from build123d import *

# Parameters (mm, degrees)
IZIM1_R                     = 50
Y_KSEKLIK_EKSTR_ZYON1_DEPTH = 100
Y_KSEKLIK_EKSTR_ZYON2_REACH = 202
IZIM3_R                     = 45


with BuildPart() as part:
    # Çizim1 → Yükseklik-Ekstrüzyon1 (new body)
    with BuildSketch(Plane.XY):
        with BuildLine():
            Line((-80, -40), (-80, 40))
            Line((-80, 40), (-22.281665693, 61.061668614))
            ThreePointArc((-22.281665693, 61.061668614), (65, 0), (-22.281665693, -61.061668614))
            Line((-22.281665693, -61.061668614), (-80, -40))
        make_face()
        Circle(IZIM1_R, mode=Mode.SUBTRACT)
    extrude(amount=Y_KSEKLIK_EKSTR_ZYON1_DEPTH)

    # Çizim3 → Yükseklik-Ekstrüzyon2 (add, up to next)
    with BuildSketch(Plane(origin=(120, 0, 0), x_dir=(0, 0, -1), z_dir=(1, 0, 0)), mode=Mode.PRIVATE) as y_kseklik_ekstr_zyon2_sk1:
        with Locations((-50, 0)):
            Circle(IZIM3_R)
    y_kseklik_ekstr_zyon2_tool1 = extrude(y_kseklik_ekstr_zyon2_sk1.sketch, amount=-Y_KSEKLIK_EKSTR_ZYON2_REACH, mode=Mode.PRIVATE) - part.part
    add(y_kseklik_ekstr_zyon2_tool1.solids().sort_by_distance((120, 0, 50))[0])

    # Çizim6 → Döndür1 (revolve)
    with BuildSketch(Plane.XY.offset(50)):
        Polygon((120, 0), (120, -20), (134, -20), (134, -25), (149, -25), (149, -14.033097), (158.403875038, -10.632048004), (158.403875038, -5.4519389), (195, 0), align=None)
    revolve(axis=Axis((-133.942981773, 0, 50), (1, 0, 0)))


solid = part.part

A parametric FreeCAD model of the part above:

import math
import FreeCAD as App
import Part
import Sketcher

V = App.Vector
Q = App.Units.Quantity

doc = App.newDocument("Part")
body = doc.addObject("PartDesign::Body", "Body")

# Sketch on XY plane
sketch1 = doc.addObject("Sketcher::SketchObject", "Sketch")
body.addObject(sketch1)
sketch1.AttachmentSupport = (doc.XY_Plane, [""])
sketch1.MapMode = "FlatFace"
sketch1.addGeometry([
    Part.LineSegment(V(-80, 40, 0), V(-80, -40, 0)),  # 0
    Part.LineSegment(V(-80, -40, 0), V(-22, -61, 0)),  # 1
    Part.ArcOfCircle(Part.Circle(V(0, 0, 0), V(0, 0, 1), 65), math.radians(-110), math.radians(110)),  # 2
    Part.LineSegment(V(-22, 61, 0), V(-80, 40, 0)),  # 3
    Part.Circle(V(0, 0, 0), V(0, 0, 1), 50),  # 4
], False)
sketch1.addConstraint([
    Sketcher.Constraint("Coincident", 0, 2, 1, 1),
    Sketcher.Constraint("Tangent", 1, 2, 2, 1),
    Sketcher.Constraint("Tangent", 2, 2, 3, 1),
    Sketcher.Constraint("Coincident", 3, 2, 0, 1),
    Sketcher.Constraint("Vertical", 0),
    Sketcher.Constraint("Coincident", 2, 3, -1, 1),
    Sketcher.Constraint("Coincident", 4, 3, -1, 1),
    Sketcher.Constraint("Vertical", 1, 2, 2, 2),
    Sketcher.Constraint("Diameter", 4, Q("100 mm")),
    Sketcher.Constraint("Radius", 2, Q("65 mm")),
    Sketcher.Constraint("DistanceY", 0, 2, 0, 1, Q("80 mm")),
    Sketcher.Constraint("DistanceX", 0, 2, -1, 1, Q("80 mm")),
])
pad1 = doc.addObject("PartDesign::Pad", "Pad")
body.addObject(pad1)
pad1.Profile = sketch1
pad1.Length = 100

# Sketch on YZ plane
sketch2 = doc.addObject("Sketcher::SketchObject", "Sketch001")
body.addObject(sketch2)
sketch2.AttachmentSupport = (doc.YZ_Plane, [""])
sketch2.MapMode = "FlatFace"
sketch2.AttachmentOffset = App.Placement(V(0, 0, 120), App.Rotation())
sketch2.addGeometry(Part.Circle(V(0, 50, 0), V(0, 0, 1), 45), False)
sketch2.addConstraint([
    Sketcher.Constraint("PointOnObject", 0, 3, -2),
    Sketcher.Constraint("Diameter", 0, Q("90 mm")),
    Sketcher.Constraint("DistanceY", -1, 1, 0, 3, Q("50 mm")),
])
pad2 = doc.addObject("PartDesign::Pad", "Pad001")
body.addObject(pad2)
pad2.Profile = sketch2
pad2.Type = "UpToFirst"
pad2.Reversed = True

# Sketch on XY plane
sketch3 = doc.addObject("Sketcher::SketchObject", "Sketch002")
body.addObject(sketch3)
sketch3.AttachmentSupport = (doc.XY_Plane, [""])
sketch3.MapMode = "FlatFace"
sketch3.AttachmentOffset = App.Placement(V(0, 0, 50), App.Rotation())
sketch3.addGeometry([
    Part.LineSegment(V(120, 0, 0), V(120, -20, 0)),  # 0
    Part.LineSegment(V(120, -20, 0), V(134, -20, 0)),  # 1
    Part.LineSegment(V(134, -20, 0), V(134, -25, 0)),  # 2
    Part.LineSegment(V(134, -25, 0), V(149, -25, 0)),  # 3
    Part.LineSegment(V(149, -25, 0), V(149, -14, 0)),  # 4
    Part.LineSegment(V(149, -14, 0), V(158, -11, 0)),  # 5
    Part.LineSegment(V(158, -11, 0), V(158, -5, 0)),  # 6
    Part.LineSegment(V(158, -5, 0), V(195, 0, 0)),  # 7
    Part.LineSegment(V(195, 0, 0), V(120, 0, 0)),  # 8
], False)
sketch3.addConstraint([
    Sketcher.Constraint("Coincident", 0, 2, 1, 1),
    Sketcher.Constraint("Coincident", 1, 2, 2, 1),
    Sketcher.Constraint("Coincident", 2, 2, 3, 1),
    Sketcher.Constraint("Coincident", 3, 2, 4, 1),
    Sketcher.Constraint("Coincident", 4, 2, 5, 1),
    Sketcher.Constraint("Coincident", 5, 2, 6, 1),
    Sketcher.Constraint("Coincident", 6, 2, 7, 1),
    Sketcher.Constraint("Coincident", 7, 2, 8, 1),
    Sketcher.Constraint("Coincident", 8, 2, 0, 1),
    Sketcher.Constraint("Vertical", 0),
    Sketcher.Constraint("Horizontal", 1),
    Sketcher.Constraint("Vertical", 2),
    Sketcher.Constraint("Horizontal", 3),
    Sketcher.Constraint("Vertical", 4),
    Sketcher.Constraint("Vertical", 6),
    Sketcher.Constraint("Horizontal", 8),
    Sketcher.Constraint("PointOnObject", 7, 2, -1),
    Sketcher.Constraint("DistanceX", 1, 1, 1, 2, Q("14 mm")),
    Sketcher.Constraint("DistanceX", 3, 1, 3, 2, Q("15 mm")),
    Sketcher.Constraint("DistanceX", 8, 2, 8, 1, Q("75 mm")),
    Sketcher.Constraint("DistanceY", 0, 2, 0, 1, Q("20 mm")),
    Sketcher.Constraint("DistanceY", 2, 2, 2, 1, Q("5 mm")),
    Sketcher.Constraint("Distance", 5, Q("10 mm")),
    Sketcher.Constraint("Distance", 7, Q("37 mm")),
    Sketcher.Constraint("DistanceX", -1, 1, 0, 2, Q("120 mm")),
    Sketcher.Constraint("DistanceY", 6, 1, 6, 2, Q("5.180109 mm")),
    Sketcher.Constraint("DistanceY", 4, 1, 4, 2, Q("10.966903 mm")),
])
revolution = doc.addObject("PartDesign::Revolution", "Revolution")
body.addObject(revolution)
revolution.Profile = sketch3
revolution.ReferenceAxis = (sketch3, ["H_Axis"])
revolution.Angle = 360

doc.recompute()
